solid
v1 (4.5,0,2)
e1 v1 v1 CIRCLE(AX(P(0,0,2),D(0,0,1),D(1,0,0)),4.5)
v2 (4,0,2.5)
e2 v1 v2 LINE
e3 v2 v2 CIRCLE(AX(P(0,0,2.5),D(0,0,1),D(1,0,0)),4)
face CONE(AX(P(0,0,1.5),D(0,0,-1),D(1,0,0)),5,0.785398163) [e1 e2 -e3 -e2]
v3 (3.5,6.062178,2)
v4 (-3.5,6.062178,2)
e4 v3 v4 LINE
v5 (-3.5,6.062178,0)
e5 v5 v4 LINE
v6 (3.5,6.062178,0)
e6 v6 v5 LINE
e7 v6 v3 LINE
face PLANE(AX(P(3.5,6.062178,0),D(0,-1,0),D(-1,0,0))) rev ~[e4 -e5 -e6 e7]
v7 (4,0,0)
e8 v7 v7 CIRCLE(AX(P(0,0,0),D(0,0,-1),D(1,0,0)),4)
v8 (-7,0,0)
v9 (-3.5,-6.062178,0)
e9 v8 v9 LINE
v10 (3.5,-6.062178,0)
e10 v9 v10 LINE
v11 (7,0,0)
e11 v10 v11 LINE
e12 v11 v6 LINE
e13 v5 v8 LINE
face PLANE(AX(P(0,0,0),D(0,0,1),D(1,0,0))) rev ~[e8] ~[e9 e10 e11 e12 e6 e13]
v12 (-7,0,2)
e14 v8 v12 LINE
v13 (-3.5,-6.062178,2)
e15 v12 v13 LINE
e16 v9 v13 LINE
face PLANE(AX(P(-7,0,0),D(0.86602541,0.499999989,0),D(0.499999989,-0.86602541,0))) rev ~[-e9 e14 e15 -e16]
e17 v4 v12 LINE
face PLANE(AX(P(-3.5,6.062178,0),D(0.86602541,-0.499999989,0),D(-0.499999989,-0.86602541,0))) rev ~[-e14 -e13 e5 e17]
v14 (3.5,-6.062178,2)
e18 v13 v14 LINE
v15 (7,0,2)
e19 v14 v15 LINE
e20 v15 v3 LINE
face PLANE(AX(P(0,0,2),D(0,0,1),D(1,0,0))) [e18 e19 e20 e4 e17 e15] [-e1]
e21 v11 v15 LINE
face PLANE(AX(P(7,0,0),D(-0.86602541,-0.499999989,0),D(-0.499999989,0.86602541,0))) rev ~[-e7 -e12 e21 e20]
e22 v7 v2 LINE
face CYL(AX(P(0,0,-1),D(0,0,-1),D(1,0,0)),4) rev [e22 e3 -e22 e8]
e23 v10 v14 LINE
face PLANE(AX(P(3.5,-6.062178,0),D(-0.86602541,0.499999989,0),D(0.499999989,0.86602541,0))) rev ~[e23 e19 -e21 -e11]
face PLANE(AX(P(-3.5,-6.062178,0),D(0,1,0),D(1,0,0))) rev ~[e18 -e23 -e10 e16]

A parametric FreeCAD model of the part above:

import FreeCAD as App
import Part
import Sketcher

V = App.Vector
Q = App.Units.Quantity


def edges_at(feature, points):
    """Names of the edges that pass closest to the given points."""
    edges = feature.Shape.Edges
    near = lambda p: min(range(len(edges)), key=lambda i: edges[i].distToShape(Part.Vertex(*p))[0])
    return sorted({f"Edge{near(p) + 1}" for p in points})


def add_polygon(sketch, points):
    """Adds a closed chain of lines whose ends are joined by coincident constraints."""
    first, n = sketch.GeometryCount, len(points)
    for a, b in zip(points, points[1:] + points[:1]):
        sketch.addGeometry(Part.LineSegment(App.Vector(*a, 0), App.Vector(*b, 0)), False)
    for i in range(n):
        sketch.addConstraint(Sketcher.Constraint("Coincident", first + i, 2, first + (i + 1) % n, 1))

doc = App.newDocument("Part")
params = doc.addObject("Spreadsheet::Sheet", "Params")
for row, (alias, value) in enumerate([
    ("sketch1_diameter", "8 mm"),
    ("pad1_length", "10 mm"),
    ("sketch2_width", "7 mm"),
    ("sketch2_length", "7 mm"),
    ("pad2_length", "2 mm"),
    ("sketch3_diameter", "10 mm"),
    ("pad3_length", "1.5 mm"),
    ("chamfer_size", "1 mm"),
], start=1):
    params.set(f"A{row}", alias)
    params.set(f"B{row}", "=" + value)
    params.setAlias(f"B{row}", alias)

body = doc.addObject("PartDesign::Body", "Body")

# Sketch on XY plane
sketch1 = body.newObject("Sketcher::SketchObject", "Sketch")
sketch1.AttachmentSupport = (doc.getObject("XY_Plane"), [""])
sketch1.MapMode = "FlatFace"
sketch1.AttachmentOffset = App.Placement(V(0, 0, -1), App.Rotation())
sketch1.addGeometry(Part.Circle(V(0, 0, 0), V(0, 0, 1), 4), False)
sketch1.addConstraint(Sketcher.Constraint("Coincident", 0, 3, -1, 1))
sketch1.addConstraint(Sketcher.Constraint("Diameter", 0, 8.0))
sketch1.setExpression("Constraints[1]", "Params.sketch1_diameter")
pad1 = body.newObject("PartDesign::Pad", "Pad")
pad1.Profile = sketch1
pad1.setExpression("Length", "Params.pad1_length")
body2 = doc.addObject("PartDesign::Body", "Body001")

# Sketch on XY plane
sketch2 = body2.newObject("Sketcher::SketchObject", "Sketch001")
sketch2.AttachmentSupport = (doc.getObject("XY_Plane001"), [""])
sketch2.MapMode = "FlatFace"
add_polygon(sketch2, [(7, 0), (3.5, 6.062178), (-3.5, 6.062178), (-7, 0), (-3.5, -6.062178), (3.5, -6.062178)])  # lines 0-5
sketch2.addConstraint(Sketcher.Constraint("Horizontal", 1))
sketch2.addConstraint(Sketcher.Constraint("Horizontal", 4))
sketch2.addConstraint(Sketcher.Constraint("Symmetric", 0, 2, 3, 2, -1, 1))
sketch2.addConstraint(Sketcher.Constraint("Symmetric", 2, 2, 5, 2, -1, 1))
sketch2.addConstraint(Sketcher.Constraint("PointOnObject", 2, 2, -1))
sketch2.addConstraint(Sketcher.Constraint("Parallel", 2, 5))
sketch2.addConstraint(Sketcher.Constraint("Vertical", 1, 2, 3, 2))
sketch2.addConstraint(Sketcher.Constraint("DistanceX", 1, 2, 1, 1, 7.0))
sketch2.addConstraint(Sketcher.Constraint("Angle", 0, Q("119.999999 deg")))
sketch2.addConstraint(Sketcher.Constraint("Distance", 0, 7.0))
sketch2.setExpression("Constraints[13]", "Params.sketch2_width")
sketch2.setExpression("Constraints[15]", "Params.sketch2_length")
pad2 = body2.newObject("PartDesign::Pad", "Pad001")
pad2.Profile = sketch2
pad2.setExpression("Length", "Params.pad2_length")
body3 = doc.addObject("PartDesign::Body", "Body002")

# Sketch on XY plane
sketch3 = body3.newObject("Sketcher::SketchObject", "Sketch002")
sketch3.AttachmentSupport = (doc.getObject("XY_Plane002"), [""])
sketch3.MapMode = "FlatFace"
sketch3.AttachmentOffset = App.Placement(V(0, 0, 1), App.Rotation())
sketch3.addGeometry(Part.Circle(V(0, 0, 0), V(0, 0, 1), 5), False)
sketch3.addConstraint(Sketcher.Constraint("Coincident", 0, 3, -1, 1))
sketch3.addConstraint(Sketcher.Constraint("Diameter", 0, 10.0))
sketch3.setExpression("Constraints[1]", "Params.sketch3_diameter")
pad3 = body3.newObject("PartDesign::Pad", "Pad002")
pad3.Profile = sketch3
pad3.setExpression("Length", "Params.pad3_length")
doc.recompute()

chamfer = body3.newObject("PartDesign::Chamfer", "Chamfer")
chamfer.Base = (pad3, edges_at(pad3, [(-5, 0, 2.5)]))
chamfer.setExpression("Size", "Params.chamfer_size")
doc.recompute()

boolean = body3.newObject("PartDesign::Boolean", "Boolean")
boolean.Type = "Fuse"
boolean.addObjects([body2])
doc.recompute()

boolean2 = body3.newObject("PartDesign::Boolean", "Boolean001")
boolean2.Type = "Cut"
boolean2.addObjects([body])

doc.recompute()
